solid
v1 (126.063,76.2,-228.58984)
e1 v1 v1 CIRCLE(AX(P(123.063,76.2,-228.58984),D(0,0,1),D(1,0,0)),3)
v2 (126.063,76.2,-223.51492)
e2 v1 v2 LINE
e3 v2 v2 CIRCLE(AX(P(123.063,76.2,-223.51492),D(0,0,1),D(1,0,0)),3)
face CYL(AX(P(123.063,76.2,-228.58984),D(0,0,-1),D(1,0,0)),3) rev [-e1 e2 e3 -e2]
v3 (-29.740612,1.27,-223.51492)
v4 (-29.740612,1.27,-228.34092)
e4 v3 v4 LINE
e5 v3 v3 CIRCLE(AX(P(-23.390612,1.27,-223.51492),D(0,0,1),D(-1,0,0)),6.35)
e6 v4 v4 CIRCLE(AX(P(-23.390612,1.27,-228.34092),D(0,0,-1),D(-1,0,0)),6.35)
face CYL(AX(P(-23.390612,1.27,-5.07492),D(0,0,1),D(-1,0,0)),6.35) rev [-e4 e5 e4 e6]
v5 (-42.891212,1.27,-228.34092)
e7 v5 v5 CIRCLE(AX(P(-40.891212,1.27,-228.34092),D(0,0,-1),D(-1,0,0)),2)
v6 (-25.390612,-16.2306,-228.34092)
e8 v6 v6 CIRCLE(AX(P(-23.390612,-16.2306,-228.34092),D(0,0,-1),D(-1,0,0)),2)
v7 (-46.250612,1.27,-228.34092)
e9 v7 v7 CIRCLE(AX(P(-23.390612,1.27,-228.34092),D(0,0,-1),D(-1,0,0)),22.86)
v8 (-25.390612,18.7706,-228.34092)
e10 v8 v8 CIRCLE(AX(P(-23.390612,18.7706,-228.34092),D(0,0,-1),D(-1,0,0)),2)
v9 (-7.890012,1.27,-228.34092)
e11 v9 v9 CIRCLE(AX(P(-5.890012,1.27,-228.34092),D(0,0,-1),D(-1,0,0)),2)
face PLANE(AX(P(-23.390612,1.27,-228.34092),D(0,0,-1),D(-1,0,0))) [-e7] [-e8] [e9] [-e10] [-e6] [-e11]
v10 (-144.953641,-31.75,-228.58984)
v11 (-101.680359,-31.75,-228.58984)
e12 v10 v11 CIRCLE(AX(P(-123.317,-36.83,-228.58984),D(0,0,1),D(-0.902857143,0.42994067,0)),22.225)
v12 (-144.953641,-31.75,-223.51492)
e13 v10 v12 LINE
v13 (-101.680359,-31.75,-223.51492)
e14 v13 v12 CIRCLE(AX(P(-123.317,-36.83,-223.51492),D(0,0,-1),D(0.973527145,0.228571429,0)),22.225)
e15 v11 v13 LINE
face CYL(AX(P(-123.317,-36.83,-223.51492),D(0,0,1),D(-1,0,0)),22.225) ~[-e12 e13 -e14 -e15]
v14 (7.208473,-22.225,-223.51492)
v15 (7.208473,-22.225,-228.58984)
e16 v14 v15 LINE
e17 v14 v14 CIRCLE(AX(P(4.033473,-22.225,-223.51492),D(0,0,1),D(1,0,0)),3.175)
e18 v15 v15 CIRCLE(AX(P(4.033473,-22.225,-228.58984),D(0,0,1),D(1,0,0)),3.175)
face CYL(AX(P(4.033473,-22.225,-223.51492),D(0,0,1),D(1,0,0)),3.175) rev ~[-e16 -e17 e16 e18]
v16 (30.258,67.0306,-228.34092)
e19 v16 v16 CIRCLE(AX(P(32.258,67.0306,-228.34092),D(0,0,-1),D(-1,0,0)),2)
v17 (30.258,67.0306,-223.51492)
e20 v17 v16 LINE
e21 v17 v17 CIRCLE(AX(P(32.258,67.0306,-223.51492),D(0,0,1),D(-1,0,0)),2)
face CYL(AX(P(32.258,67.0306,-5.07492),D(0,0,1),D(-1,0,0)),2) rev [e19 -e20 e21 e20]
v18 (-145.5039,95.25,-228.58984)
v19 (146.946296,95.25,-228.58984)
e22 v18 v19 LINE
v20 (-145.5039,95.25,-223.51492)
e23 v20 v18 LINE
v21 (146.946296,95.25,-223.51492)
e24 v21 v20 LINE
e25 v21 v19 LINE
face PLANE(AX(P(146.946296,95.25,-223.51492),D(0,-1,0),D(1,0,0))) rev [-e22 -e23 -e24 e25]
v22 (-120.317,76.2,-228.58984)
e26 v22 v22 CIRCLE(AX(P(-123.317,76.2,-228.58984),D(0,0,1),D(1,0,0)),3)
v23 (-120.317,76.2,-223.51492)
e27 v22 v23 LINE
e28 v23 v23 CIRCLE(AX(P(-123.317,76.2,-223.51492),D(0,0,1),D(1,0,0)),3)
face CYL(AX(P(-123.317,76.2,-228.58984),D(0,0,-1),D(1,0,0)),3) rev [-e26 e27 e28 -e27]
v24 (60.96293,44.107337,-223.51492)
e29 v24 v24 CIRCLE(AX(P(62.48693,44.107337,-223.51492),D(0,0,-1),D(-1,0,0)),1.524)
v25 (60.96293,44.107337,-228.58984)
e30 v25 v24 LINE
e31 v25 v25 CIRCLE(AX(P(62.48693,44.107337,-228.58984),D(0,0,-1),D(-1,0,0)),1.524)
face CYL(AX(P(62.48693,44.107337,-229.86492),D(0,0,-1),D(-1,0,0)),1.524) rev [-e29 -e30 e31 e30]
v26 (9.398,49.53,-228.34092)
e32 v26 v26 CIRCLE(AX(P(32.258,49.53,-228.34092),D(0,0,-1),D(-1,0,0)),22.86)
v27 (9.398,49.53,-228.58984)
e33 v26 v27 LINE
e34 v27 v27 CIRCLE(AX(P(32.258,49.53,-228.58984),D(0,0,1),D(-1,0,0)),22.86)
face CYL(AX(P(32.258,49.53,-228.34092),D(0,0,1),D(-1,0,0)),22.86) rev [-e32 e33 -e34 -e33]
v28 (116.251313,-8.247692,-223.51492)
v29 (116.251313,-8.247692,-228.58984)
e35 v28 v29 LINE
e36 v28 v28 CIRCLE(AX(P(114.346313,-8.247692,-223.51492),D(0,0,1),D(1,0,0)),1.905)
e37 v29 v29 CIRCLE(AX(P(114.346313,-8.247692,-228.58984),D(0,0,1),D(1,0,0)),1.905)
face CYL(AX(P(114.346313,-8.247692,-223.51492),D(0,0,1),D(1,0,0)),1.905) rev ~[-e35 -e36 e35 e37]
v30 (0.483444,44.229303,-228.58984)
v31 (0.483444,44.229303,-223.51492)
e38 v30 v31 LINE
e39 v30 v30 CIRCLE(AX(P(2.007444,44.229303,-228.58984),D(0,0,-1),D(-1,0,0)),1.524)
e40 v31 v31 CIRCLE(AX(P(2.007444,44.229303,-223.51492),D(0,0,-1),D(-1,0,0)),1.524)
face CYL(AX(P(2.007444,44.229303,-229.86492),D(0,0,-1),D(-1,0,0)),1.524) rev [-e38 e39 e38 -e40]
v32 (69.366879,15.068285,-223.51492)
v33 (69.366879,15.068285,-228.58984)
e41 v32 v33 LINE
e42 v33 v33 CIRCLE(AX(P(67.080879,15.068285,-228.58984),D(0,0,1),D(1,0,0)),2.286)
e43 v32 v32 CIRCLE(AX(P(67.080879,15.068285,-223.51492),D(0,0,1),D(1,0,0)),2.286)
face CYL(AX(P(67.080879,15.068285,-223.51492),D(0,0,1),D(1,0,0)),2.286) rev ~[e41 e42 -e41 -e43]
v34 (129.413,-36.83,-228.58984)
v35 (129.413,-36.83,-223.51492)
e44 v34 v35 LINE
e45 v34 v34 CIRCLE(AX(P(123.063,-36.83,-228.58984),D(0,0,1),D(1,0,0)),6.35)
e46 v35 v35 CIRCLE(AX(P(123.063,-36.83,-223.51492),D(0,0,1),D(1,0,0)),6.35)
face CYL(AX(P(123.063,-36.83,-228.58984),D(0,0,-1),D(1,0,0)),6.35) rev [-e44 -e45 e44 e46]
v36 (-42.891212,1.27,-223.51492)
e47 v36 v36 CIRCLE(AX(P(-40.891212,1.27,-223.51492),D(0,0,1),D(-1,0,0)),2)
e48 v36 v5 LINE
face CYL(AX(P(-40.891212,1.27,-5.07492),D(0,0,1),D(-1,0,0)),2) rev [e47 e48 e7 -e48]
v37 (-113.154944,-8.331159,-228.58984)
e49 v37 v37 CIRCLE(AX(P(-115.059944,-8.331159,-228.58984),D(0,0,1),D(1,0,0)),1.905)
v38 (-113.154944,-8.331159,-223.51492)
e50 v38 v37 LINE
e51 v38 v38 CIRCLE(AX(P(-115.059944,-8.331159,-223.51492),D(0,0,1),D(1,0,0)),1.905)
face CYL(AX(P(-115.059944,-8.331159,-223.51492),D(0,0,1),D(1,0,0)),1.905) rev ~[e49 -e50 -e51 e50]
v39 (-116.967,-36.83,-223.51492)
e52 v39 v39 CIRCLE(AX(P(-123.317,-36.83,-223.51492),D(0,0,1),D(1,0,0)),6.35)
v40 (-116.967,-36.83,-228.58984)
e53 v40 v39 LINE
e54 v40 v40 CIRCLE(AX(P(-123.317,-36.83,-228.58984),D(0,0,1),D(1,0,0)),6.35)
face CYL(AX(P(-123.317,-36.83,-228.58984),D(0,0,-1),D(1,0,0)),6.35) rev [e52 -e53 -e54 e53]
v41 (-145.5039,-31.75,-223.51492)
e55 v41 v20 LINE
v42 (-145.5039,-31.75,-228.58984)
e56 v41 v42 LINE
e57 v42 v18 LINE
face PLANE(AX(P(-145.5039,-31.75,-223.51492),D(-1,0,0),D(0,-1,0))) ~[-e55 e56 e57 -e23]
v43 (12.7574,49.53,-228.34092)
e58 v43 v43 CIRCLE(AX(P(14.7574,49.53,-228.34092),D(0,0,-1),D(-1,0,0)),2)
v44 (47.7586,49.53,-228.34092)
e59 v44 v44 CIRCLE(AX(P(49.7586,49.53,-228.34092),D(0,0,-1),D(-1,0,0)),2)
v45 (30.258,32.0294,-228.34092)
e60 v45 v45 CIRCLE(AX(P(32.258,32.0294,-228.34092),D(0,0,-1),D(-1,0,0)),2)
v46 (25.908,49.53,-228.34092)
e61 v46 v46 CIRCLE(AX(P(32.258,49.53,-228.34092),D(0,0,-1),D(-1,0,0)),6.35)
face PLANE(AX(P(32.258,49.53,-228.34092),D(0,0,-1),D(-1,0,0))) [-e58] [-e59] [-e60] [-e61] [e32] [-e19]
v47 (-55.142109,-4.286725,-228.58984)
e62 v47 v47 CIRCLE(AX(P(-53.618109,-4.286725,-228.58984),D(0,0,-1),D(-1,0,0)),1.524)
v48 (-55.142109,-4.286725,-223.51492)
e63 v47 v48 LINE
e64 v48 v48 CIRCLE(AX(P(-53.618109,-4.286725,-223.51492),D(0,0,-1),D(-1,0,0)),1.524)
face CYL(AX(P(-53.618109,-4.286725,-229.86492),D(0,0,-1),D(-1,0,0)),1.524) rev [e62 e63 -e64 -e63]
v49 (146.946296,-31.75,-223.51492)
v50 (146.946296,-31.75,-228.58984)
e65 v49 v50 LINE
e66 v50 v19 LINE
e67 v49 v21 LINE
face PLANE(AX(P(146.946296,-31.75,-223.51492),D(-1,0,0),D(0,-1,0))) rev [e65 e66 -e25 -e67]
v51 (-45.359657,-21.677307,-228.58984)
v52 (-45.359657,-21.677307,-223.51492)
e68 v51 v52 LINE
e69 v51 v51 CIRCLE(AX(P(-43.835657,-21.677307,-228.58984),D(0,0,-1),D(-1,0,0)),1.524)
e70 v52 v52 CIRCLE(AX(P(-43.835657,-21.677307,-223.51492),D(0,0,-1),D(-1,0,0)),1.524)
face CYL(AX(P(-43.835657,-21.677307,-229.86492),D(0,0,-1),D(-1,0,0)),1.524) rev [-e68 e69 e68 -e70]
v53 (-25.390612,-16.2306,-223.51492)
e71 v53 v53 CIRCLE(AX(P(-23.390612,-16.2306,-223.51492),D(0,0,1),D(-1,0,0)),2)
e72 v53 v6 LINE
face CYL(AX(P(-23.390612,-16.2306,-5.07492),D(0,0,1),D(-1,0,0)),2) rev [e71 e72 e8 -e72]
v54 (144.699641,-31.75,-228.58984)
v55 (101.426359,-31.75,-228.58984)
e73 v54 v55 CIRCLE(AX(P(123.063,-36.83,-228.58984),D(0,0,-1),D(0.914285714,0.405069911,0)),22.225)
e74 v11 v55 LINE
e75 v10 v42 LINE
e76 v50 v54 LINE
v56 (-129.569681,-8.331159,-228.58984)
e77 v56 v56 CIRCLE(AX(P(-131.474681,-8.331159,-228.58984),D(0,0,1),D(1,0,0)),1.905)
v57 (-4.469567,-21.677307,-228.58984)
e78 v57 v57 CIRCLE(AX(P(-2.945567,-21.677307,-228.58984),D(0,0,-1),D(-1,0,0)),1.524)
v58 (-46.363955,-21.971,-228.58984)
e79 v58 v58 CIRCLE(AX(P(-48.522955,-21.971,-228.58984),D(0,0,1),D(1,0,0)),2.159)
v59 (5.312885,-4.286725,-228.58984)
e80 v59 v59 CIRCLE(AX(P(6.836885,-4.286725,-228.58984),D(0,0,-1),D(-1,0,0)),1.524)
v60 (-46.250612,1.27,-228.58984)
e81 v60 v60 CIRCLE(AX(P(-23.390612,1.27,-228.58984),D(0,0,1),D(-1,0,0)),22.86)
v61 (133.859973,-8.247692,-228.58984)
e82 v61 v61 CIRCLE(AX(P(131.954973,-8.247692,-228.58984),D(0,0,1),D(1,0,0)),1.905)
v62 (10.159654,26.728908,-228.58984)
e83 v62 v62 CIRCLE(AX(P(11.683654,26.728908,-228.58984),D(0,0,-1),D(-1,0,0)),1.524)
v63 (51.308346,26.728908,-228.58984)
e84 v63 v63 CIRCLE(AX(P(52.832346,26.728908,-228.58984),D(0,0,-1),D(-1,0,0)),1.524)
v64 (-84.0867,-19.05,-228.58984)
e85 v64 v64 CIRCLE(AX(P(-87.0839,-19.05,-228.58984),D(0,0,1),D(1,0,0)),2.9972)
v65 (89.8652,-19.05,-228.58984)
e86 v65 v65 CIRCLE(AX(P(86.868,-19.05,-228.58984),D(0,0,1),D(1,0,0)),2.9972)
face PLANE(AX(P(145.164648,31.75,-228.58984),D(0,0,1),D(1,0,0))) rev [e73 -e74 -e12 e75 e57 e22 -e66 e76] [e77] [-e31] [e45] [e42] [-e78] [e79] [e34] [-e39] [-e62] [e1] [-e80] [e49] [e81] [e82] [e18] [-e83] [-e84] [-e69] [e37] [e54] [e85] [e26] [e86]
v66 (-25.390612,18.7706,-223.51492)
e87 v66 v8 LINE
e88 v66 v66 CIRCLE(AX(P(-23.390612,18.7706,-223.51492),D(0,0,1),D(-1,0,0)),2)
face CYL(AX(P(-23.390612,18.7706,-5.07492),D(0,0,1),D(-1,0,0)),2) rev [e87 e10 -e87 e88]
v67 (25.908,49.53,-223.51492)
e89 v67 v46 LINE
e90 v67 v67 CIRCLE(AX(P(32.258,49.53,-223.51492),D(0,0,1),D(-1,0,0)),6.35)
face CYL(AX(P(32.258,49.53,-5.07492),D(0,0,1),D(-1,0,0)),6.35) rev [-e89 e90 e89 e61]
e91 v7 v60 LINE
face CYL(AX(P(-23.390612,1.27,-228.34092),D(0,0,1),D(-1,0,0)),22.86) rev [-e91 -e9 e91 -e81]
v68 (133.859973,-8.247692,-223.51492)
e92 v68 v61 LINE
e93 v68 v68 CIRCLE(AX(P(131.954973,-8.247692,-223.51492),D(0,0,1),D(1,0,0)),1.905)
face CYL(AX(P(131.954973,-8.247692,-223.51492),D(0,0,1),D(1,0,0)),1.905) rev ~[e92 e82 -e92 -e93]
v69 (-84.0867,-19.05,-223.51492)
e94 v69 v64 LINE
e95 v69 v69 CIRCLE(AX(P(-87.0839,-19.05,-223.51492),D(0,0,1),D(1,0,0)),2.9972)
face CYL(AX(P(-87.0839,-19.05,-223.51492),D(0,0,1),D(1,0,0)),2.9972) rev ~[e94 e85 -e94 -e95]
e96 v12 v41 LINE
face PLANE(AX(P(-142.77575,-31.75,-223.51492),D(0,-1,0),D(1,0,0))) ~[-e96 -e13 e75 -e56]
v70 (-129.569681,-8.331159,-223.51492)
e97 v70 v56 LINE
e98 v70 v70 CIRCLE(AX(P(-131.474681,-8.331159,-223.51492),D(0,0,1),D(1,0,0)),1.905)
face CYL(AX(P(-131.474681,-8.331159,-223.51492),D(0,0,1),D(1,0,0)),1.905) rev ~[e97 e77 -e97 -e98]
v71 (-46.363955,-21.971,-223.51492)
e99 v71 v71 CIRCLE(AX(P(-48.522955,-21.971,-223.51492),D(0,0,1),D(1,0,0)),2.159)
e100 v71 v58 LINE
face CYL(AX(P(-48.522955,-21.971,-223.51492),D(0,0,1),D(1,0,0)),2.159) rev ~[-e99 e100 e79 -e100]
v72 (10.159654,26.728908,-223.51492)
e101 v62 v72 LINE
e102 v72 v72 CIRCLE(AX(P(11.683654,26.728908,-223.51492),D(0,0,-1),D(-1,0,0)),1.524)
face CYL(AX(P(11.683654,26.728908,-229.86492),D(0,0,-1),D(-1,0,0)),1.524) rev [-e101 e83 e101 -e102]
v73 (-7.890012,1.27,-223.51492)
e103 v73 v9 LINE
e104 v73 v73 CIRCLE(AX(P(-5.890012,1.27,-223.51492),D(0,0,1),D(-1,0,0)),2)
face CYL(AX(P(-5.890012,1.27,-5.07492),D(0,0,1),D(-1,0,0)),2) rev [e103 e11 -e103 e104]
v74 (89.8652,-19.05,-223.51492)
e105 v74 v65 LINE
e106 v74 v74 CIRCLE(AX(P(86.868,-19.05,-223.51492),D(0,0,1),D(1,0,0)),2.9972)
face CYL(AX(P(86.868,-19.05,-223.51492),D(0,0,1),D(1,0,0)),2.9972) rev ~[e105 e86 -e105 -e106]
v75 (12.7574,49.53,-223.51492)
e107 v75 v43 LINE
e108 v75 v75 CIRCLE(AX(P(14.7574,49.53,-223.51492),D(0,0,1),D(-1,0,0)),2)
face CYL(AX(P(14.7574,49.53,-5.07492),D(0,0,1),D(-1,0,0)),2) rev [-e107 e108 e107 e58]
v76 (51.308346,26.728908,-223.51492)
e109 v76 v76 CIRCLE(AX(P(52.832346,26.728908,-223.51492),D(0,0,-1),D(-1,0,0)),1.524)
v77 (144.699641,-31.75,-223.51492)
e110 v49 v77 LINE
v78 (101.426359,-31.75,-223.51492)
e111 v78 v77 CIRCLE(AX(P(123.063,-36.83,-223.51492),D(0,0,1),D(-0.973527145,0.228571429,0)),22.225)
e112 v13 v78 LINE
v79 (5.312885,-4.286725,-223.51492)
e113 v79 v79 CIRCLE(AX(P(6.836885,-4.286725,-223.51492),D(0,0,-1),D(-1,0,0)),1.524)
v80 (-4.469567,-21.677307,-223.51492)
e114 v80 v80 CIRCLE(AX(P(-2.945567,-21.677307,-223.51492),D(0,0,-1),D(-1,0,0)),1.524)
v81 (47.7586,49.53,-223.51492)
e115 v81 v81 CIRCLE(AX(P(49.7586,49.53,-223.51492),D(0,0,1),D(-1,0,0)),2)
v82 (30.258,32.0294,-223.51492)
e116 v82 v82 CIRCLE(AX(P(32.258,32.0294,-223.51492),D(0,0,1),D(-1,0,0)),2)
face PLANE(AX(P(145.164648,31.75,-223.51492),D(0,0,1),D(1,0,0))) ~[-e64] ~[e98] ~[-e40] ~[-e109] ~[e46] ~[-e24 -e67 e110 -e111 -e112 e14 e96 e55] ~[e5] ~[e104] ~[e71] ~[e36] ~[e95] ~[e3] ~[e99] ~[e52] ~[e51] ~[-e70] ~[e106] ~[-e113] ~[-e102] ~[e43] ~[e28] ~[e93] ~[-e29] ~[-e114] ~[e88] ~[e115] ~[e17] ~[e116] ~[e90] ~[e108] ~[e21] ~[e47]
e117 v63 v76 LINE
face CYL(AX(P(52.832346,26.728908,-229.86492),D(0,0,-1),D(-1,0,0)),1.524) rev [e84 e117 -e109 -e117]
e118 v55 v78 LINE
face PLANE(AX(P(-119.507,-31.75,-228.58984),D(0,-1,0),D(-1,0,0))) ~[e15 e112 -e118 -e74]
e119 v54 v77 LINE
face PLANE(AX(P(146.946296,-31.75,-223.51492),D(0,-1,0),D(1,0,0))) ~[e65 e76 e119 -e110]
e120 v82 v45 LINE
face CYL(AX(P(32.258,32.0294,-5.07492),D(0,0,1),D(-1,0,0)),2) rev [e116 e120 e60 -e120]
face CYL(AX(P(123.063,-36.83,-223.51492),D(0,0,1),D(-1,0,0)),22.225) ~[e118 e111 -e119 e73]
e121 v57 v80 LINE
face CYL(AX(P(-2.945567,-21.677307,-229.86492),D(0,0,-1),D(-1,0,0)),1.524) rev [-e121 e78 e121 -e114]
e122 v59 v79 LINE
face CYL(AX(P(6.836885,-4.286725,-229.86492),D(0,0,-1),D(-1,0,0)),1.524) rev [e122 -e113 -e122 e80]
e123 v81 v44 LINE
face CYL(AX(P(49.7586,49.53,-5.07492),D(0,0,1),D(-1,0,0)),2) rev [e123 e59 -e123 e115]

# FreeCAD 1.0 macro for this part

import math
import FreeCAD as App
import Part
import Sketcher

V = App.Vector
Q = App.Units.Quantity


def add_polygon(sketch, points):
    """Adds a closed chain of lines whose ends are joined by coincident constraints."""
    first, n = sketch.GeometryCount, len(points)
    for a, b in zip(points, points[1:] + points[:1]):
        sketch.addGeometry(Part.LineSegment(App.Vector(*a, 0), App.Vector(*b, 0)), False)
    for i in range(n):
        sketch.addConstraint(Sketcher.Constraint("Coincident", first + i, 2, first + (i + 1) % n, 1))

doc = App.newDocument("Part")
body = doc.addObject("PartDesign::Body", "Body")

# Sketch on XY plane
sketch1 = doc.addObject("Sketcher::SketchObject", "Sketch")
body.addObject(sketch1)
sketch1.AttachmentSupport = (doc.XY_Plane, [""])
sketch1.MapMode = "FlatFace"
sketch1.addGeometry([
    Part.LineSegment(V(-143, -32, 0), V(-127, -32, 0)),  # 0
    Part.ArcOfCircle(Part.Circle(V(-123, -37, 0), V(0, 0, 1), 6), math.radians(53), math.radians(127)),  # 1
    Part.LineSegment(V(-120, -32, 0), V(119, -32, 0)),  # 2
    Part.ArcOfCircle(Part.Circle(V(123, -37, 0), V(0, 0, 1), 6), math.radians(53), math.radians(127)),  # 3
    Part.LineSegment(V(127, -32, 0), V(143, -32, 0)),  # 4
    Part.LineSegment(V(143, -32, 0), V(143, 95, 0)),  # 5
    Part.LineSegment(V(143, 95, 0), V(-143, 95, 0)),  # 6
    Part.LineSegment(V(-143, 95, 0), V(-143, -32, 0)),  # 7
], False)
sketch1.addConstraint([
    Sketcher.Constraint("Coincident", 0, 2, 1, 2),
    Sketcher.Constraint("Coincident", 1, 1, 2, 1),
    Sketcher.Constraint("Coincident", 2, 2, 3, 2),
    Sketcher.Constraint("Coincident", 3, 1, 4, 1),
    Sketcher.Constraint("Coincident", 4, 2, 5, 1),
    Sketcher.Constraint("Coincident", 5, 2, 6, 1),
    Sketcher.Constraint("Coincident", 6, 2, 7, 1),
    Sketcher.Constraint("Coincident", 7, 2, 0, 1),
    Sketcher.Constraint("Horizontal", 0),
    Sketcher.Constraint("Horizontal", 2),
    Sketcher.Constraint("Horizontal", 4),
    Sketcher.Constraint("Vertical", 5),
    Sketcher.Constraint("Horizontal", 6),
    Sketcher.Constraint("Vertical", 7),
    Sketcher.Constraint("Equal", 1, 3),
    Sketcher.Constraint("Symmetric", 4, 2, 7, 2, -2),
    Sketcher.Constraint("Horizontal", 1, 3, 3, 3),
    Sketcher.Constraint("Horizontal", 0, 2, 1, 1),
    Sketcher.Constraint("DistanceY", 5, 1, 5, 2, Q("5 in")),
    Sketcher.Constraint("Radius", 1, Q("0.25 in")),
    Sketcher.Constraint("DistanceX", 2, 1, 2, 2, Q("9.4 in")),
    Sketcher.Constraint("DistanceX", 0, 2, 3, 1, Q("10 in")),
    Sketcher.Constraint("DistanceX", 0, 1, 0, 2, Q("0.64 in")),
    Sketcher.Constraint("DistanceX", 4, 1, 4, 2, Q("0.65 in")),
    Sketcher.Constraint("DistanceY", 1, 3, -1, 1, Q("1.45 in")),
])
pad1 = doc.addObject("PartDesign::Pad", "Pad")
body.addObject(pad1)
pad1.Profile = sketch1
pad1.Length = Q("0.1998 in")
pad1.Reversed = True

# Sketch on XY plane
sketch2 = doc.addObject("Sketcher::SketchObject", "Sketch001")
body.addObject(sketch2)
sketch2.AttachmentSupport = (doc.XY_Plane, [""])
sketch2.MapMode = "FlatFace"
sketch2.AttachmentOffset = App.Placement(V(0, 0, -0.1998 * 25.4), App.Rotation())
sketch2.addGeometry([
    Part.Circle(V(123, -37, 0), V(0, 0, 1), 22),
    Part.Circle(V(-123, -37, 0), V(0, 0, 1), 22),
], False)
sketch2.addConstraint([
    Sketcher.Constraint("Equal", 0, 1),
    Sketcher.Constraint("Horizontal", 0, 3, 1, 3),
    Sketcher.Constraint("Diameter", 0, Q("1.75 in")),
    Sketcher.Constraint("DistanceX", 1, 3, 0, 3, Q("9.7 in")),
    Sketcher.Constraint("DistanceY", 0, 3, -1, 1, Q("1.45 in")),
    Sketcher.Constraint("DistanceX", -1, 1, 0, 3, Q("4.845 in")),
])
pad2 = doc.addObject("PartDesign::Pad", "Pad001")
body.addObject(pad2)
pad2.Profile = sketch2
pad2.Length = Q("0.1998 in")

# Sketch on XY plane
sketch3 = doc.addObject("Sketcher::SketchObject", "Sketch002")
body.addObject(sketch3)
sketch3.AttachmentSupport = (doc.XY_Plane, [""])
sketch3.MapMode = "FlatFace"
sketch3.addGeometry([
    Part.Circle(V(-123, -37, 0), V(0, 0, 1), 6),
    Part.Circle(V(123, -37, 0), V(0, 0, 1), 6),
], False)
sketch3.addConstraint([
    Sketcher.Constraint("Equal", 0, 1),
    Sketcher.Constraint("Horizontal", 0, 3, 1, 3),
    Sketcher.Constraint("Diameter", 0, Q("0.5 in")),
    Sketcher.Constraint("DistanceX", 0, 3, 1, 3, Q("9.7 in")),
    Sketcher.Constraint("DistanceY", 0, 3, -1, 1, Q("1.45 in")),
    Sketcher.Constraint("DistanceX", 0, 3, -1, 1, Q("4.855 in")),
])
pocket1 = doc.addObject("PartDesign::Pocket", "Pocket")
body.addObject(pocket1)
pocket1.Profile = sketch3
pocket1.Length = Q("0.22 in")

# Sketch on XY plane
sketch4 = doc.addObject("Sketcher::SketchObject", "Sketch003")
body.addObject(sketch4)
sketch4.AttachmentSupport = (doc.XY_Plane, [""])
sketch4.MapMode = "FlatFace"
sketch4.AttachmentOffset = App.Placement(V(0, 0, -0.1998 * 25.4), App.Rotation())
add_polygon(sketch4, [(-142.8, 95.2), (-142.8, -31.8), (-145.5, -31.8), (-145.5, 95.2)])  # lines 0-3
sketch4.addConstraint([
    Sketcher.Constraint("Vertical", 0),
    Sketcher.Constraint("Horizontal", 1),
    Sketcher.Constraint("Vertical", 2),
    Sketcher.Constraint("Horizontal", 3),
    Sketcher.Constraint("DistanceY", 0, 2, 0, 1, Q("5 in")),
    Sketcher.Constraint("DistanceY", 0, 2, -1, 1, Q("1.25 in")),
    Sketcher.Constraint("DistanceX", 1, 2, -1, 1, Q("5.7285 in")),
    Sketcher.Constraint("DistanceX", 1, 2, 1, 1, 2.72815),
])
pad3 = doc.addObject("PartDesign::Pad", "Pad002")
body.addObject(pad3)
pad3.Profile = sketch4
pad3.Length = Q("0.1998 in")

# Sketch on XY plane
sketch5 = doc.addObject("Sketcher::SketchObject", "Sketch004")
body.addObject(sketch5)
sketch5.AttachmentSupport = (doc.XY_Plane, [""])
sketch5.MapMode = "FlatFace"
sketch5.AttachmentOffset = App.Placement(V(0, 0, -0.1998 * 25.4), App.Rotation())
add_polygon(sketch5, [(146.9, 95.2), (146.9, -31.8), (143.4, -31.8), (143.4, 95.2)])  # lines 0-3
sketch5.addConstraint([
    Sketcher.Constraint("Vertical", 0),
    Sketcher.Constraint("Horizontal", 1),
    Sketcher.Constraint("Vertical", 2),
    Sketcher.Constraint("Horizontal", 3),
    Sketcher.Constraint("DistanceY", 0, 2, 0, 1, Q("5 in")),
    Sketcher.Constraint("DistanceY", 0, 2, -1, 1, Q("1.25 in")),
    Sketcher.Constraint("DistanceX", -1, 1, 1, 2, Q("5.645 in")),
    Sketcher.Constraint("DistanceX", 1, 2, 1, 1, 3.563296),
])
pad4 = doc.addObject("PartDesign::Pad", "Pad003")
body.addObject(pad4)
pad4.Profile = sketch5
pad4.Length = Q("0.1998 in")

# Sketch on XY plane
sketch6 = doc.addObject("Sketcher::SketchObject", "Sketch005")
body.addObject(sketch6)
sketch6.AttachmentSupport = (doc.XY_Plane, [""])
sketch6.MapMode = "FlatFace"
sketch6.addGeometry([
    Part.Circle(V(-123.3, 76.2, 0), V(0, 0, 1), 3),
    Part.Circle(V(123.1, 76.2, 0), V(0, 0, 1), 3),
], False)
sketch6.addConstraint([
    Sketcher.Constraint("Equal", 0, 1),
    Sketcher.Constraint("Horizontal", 0, 3, 1, 3),
    Sketcher.Constraint("DistanceY", -1, 1, 0, 3, Q("3 in")),
    Sketcher.Constraint("DistanceX", 0, 3, 1, 3, Q("9.7 in")),
    Sketcher.Constraint("Diameter", 0, 6.0),
    Sketcher.Constraint("DistanceX", 0, 3, -1, 1, Q("4.855 in")),
])
pocket2 = doc.addObject("PartDesign::Pocket", "Pocket001")
body.addObject(pocket2)
pocket2.Profile = sketch6
pocket2.Length = Q("15.75 in")
body2 = doc.addObject("PartDesign::Body", "Body001")
doc.recompute()

mirroring = doc.addObject("Part::Mirroring", "Mirroring")
mirroring.Source = body
mirroring.Base = V(0, 0, -114.29492)
mirroring.Normal = V(0, 0, -1)
body2.BaseFeature = mirroring
doc.recompute()

# Sketch on XY plane
sketch7 = doc.addObject("Sketcher::SketchObject", "Sketch006")
body2.addObject(sketch7)
sketch7.AttachmentSupport = (doc.getObject("XY_Plane001"), [""])
sketch7.MapMode = "FlatFace"
sketch7.AttachmentOffset = App.Placement(V(0, 0, -0.1998 * 25.4), App.Rotation())
sketch7.addGeometry([
    Part.Circle(V(-23.4, 18.8, 0), V(0, 0, 1), 2),  # 0
    Part.Circle(V(-5.9, 1.3, 0), V(0, 0, 1), 2),  # 1
    Part.Circle(V(-40.9, 1.3, 0), V(0, 0, 1), 2),  # 2
    Part.Circle(V(-23.4, -16.2, 0), V(0, 0, 1), 2),  # 3
    Part.Circle(V(32.3, 67, 0), V(0, 0, 1), 2),  # 4
    Part.Circle(V(14.8, 49.5, 0), V(0, 0, 1), 2),  # 5
    Part.Circle(V(32.3, 32, 0), V(0, 0, 1), 2),  # 6
    Part.Circle(V(49.8, 49.5, 0), V(0, 0, 1), 2),  # 7
], False)
sketch7.addConstraint([
    Sketcher.Constraint("Equal", 0, 1),
    Sketcher.Constraint("Equal", 1, 2),
    Sketcher.Constraint("Equal", 2, 3),
    Sketcher.Constraint("Equal", 3, 4),
    Sketcher.Constraint("Equal", 4, 5),
    Sketcher.Constraint("Equal", 5, 6),
    Sketcher.Constraint("Equal", 6, 7),
    Sketcher.Constraint("Horizontal", 1, 3, 2, 3),
    Sketcher.Constraint("Horizontal", 5, 3, 7, 3),
    Sketcher.Constraint("Vertical", 0, 3, 3, 3),
    Sketcher.Constraint("Vertical", 4, 3, 6, 3),
    Sketcher.Constraint("DistanceY", 0, 3, 4, 3, Q("1.9 in")),
    Sketcher.Constraint("DistanceY", 1, 3, 5, 3, Q("1.9 in")),
    Sketcher.Constraint("DistanceY", 3, 3, 6, 3, Q("1.9 in")),
    Sketcher.Constraint("Diameter", 0, 4.0),
    Sketcher.Constraint("DistanceY", -1, 1, 1, 3, Q("0.05 in")),
    Sketcher.Constraint("DistanceX", -1, 1, 4, 3, Q("1.27 in")),
    Sketcher.Constraint("DistanceY", -1, 1, 0, 3, Q("0.739 in")),
    Sketcher.Constraint("DistanceY", 3, 3, -1, 1, Q("0.639 in")),
    Sketcher.Constraint("DistanceX", -1, 1, 5, 3, Q("0.581 in")),
    Sketcher.Constraint("DistanceX", -1, 1, 7, 3, Q("1.959 in")),
    Sketcher.Constraint("DistanceX", 0, 3, 1, 3, Q("0.689 in")),
    Sketcher.Constraint("DistanceX", 2, 3, 0, 3, Q("0.689 in")),
    Sketcher.Constraint("DistanceX", 0, 3, -1, 1, 23.390612),
])
pocket3 = doc.addObject("PartDesign::Pocket", "Pocket002")
body2.addObject(pocket3)
pocket3.Profile = sketch7
pocket3.Length = Q("61 in")

# Sketch on XY plane
sketch8 = doc.addObject("Sketcher::SketchObject", "Sketch007")
body2.addObject(sketch8)
sketch8.AttachmentSupport = (doc.getObject("XY_Plane001"), [""])
sketch8.MapMode = "FlatFace"
sketch8.AttachmentOffset = App.Placement(V(0, 0, -8.7998 * 25.4), App.Rotation())
sketch8.addGeometry([
    Part.Circle(V(-87.1, -19.1, 0), V(0, 0, 1), 3),
    Part.Circle(V(86.9, -19.1, 0), V(0, 0, 1), 3),
], False)
sketch8.addConstraint([
    Sketcher.Constraint("Equal", 0, 1),
    Sketcher.Constraint("Horizontal", 0, 3, 1, 3),
    Sketcher.Constraint("Diameter", 0, Q("0.236 in")),
    Sketcher.Constraint("DistanceY", 0, 3, -1, 1, Q("0.75 in")),
    Sketcher.Constraint("DistanceX", -1, 1, 1, 3, Q("3.42 in")),
    Sketcher.Constraint("DistanceX", 0, 3, -1, 1, Q("3.4285 in")),
])
pocket4 = doc.addObject("PartDesign::Pocket", "Pocket003")
body2.addObject(pocket4)
pocket4.Profile = sketch8
pocket4.Length = Q("61 in")

# Sketch on XY plane
sketch9 = doc.addObject("Sketcher::SketchObject", "Sketch008")
body2.addObject(sketch9)
sketch9.AttachmentSupport = (doc.getObject("XY_Plane001"), [""])
sketch9.MapMode = "FlatFace"
sketch9.AttachmentOffset = App.Placement(V(0, 0, -0.1998 * 25.4), App.Rotation())
sketch9.addGeometry([
    Part.Circle(V(-23, 1, 0), V(0, 0, 1), 6),
    Part.Circle(V(32, 50, 0), V(0, 0, 1), 6),
], False)
sketch9.addConstraint([
    Sketcher.Constraint("Equal", 0, 1),
    Sketcher.Constraint("Diameter", 0, Q("0.5 in")),
    Sketcher.Constraint("DistanceY", 0, 3, 1, 3, Q("1.9 in")),
    Sketcher.Constraint("DistanceY", -1, 1, 0, 3, Q("0.05 in")),
    Sketcher.Constraint("DistanceX", -1, 1, 1, 3, Q("1.27 in")),
    Sketcher.Constraint("DistanceX", 0, 3, -1, 1, 23.390612),
])
pocket5 = doc.addObject("PartDesign::Pocket", "Pocket004")
body2.addObject(pocket5)
pocket5.Profile = sketch9
pocket5.Length = Q("61 in")

# Sketch on XY plane
sketch10 = doc.addObject("Sketcher::SketchObject", "Sketch009")
body2.addObject(sketch10)
sketch10.AttachmentSupport = (doc.getObject("XY_Plane001"), [""])
sketch10.MapMode = "FlatFace"
sketch10.AttachmentOffset = App.Placement(V(0, 0, -8.9898 * 25.4), App.Rotation())
sketch10.addGeometry([
    Part.Circle(V(-23.4, 1.3, 0), V(0, 0, 1), 22.9),  # 0
    Part.Circle(V(-23.4, -16.2, 0), V(0, 0, 1), 2),  # 1
    Part.Circle(V(-5.9, 1.3, 0), V(0, 0, 1), 2),  # 2
    Part.Circle(V(-23.4, 1.3, 0), V(0, 0, 1), 6.3),  # 3
    Part.Circle(V(-40.9, 1.3, 0), V(0, 0, 1), 2),  # 4
    Part.Circle(V(-23.4, 18.8, 0), V(0, 0, 1), 2),  # 5
    Part.Circle(V(32.3, 49.5, 0), V(0, 0, 1), 22.9),  # 6
    Part.Circle(V(49.8, 49.5, 0), V(0, 0, 1), 2),  # 7
    Part.Circle(V(32.3, 32, 0), V(0, 0, 1), 2),  # 8
    Part.Circle(V(32.3, 49.5, 0), V(0, 0, 1), 6.3),  # 9
    Part.Circle(V(14.8, 49.5, 0), V(0, 0, 1), 2),  # 10
    Part.Circle(V(32.3, 67, 0), V(0, 0, 1), 2),  # 11
], False)
sketch10.addConstraint([
    Sketcher.Constraint("Coincident", 3, 3, 0, 3),
    Sketcher.Constraint("Coincident", 9, 3, 6, 3),
    Sketcher.Constraint("Equal", 1, 2),
    Sketcher.Constraint("Equal", 2, 4),
    Sketcher.Constraint("Equal", 4, 5),
    Sketcher.Constraint("Equal", 0, 6),
    Sketcher.Constraint("Equal", 5, 7),
    Sketcher.Constraint("Equal", 7, 8),
    Sketcher.Constraint("Equal", 3, 9),
    Sketcher.Constraint("Equal", 8, 10),
    Sketcher.Constraint("Equal", 10, 11),
    Sketcher.Constraint("Horizontal", 0, 3, 2, 3),
    Sketcher.Constraint("Horizontal", 3, 3, 4, 3),
    Sketcher.Constraint("Horizontal", 6, 3, 7, 3),
    Sketcher.Constraint("Horizontal", 9, 3, 10, 3),
    Sketcher.Constraint("Vertical", 0, 3, 1, 3),
    Sketcher.Constraint("Vertical", 3, 3, 5, 3),
    Sketcher.Constraint("Vertical", 6, 3, 8, 3),
    Sketcher.Constraint("Vertical", 9, 3, 11, 3),
    Sketcher.Constraint("Diameter", 0, Q("1.8 in")),
    Sketcher.Constraint("Diameter", 3, Q("0.5 in")),
    Sketcher.Constraint("DistanceY", 2, 3, 6, 3, Q("1.9 in")),
    Sketcher.Constraint("Diameter", 1, 4.0),
    Sketcher.Constraint("DistanceY", -1, 1, 0, 3, Q("0.05 in")),
    Sketcher.Constraint("DistanceX", -1, 1, 6, 3, Q("1.27 in")),
    Sketcher.Constraint("DistanceY", 1, 3, -1, 1, Q("0.639 in")),
    Sketcher.Constraint("DistanceY", -1, 1, 5, 3, Q("0.739 in")),
    Sketcher.Constraint("DistanceX", -1, 1, 7, 3, Q("1.959 in")),
    Sketcher.Constraint("DistanceY", -1, 1, 8, 3, Q("1.261 in")),
    Sketcher.Constraint("DistanceX", -1, 1, 10, 3, Q("0.581 in")),
    Sketcher.Constraint("DistanceY", -1, 1, 11, 3, Q("2.639 in")),
    Sketcher.Constraint("DistanceX", 0, 3, 2, 3, Q("0.689 in")),
    Sketcher.Constraint("DistanceX", 4, 3, 0, 3, Q("0.689 in")),
    Sketcher.Constraint("DistanceX", 0, 3, -1, 1, 23.390612),
])
pocket6 = doc.addObject("PartDesign::Pocket", "Pocket005")
body2.addObject(pocket6)
pocket6.Profile = sketch10
pocket6.Length = Q("61 in")

# Sketch on XY plane
sketch11 = doc.addObject("Sketcher::SketchObject", "Sketch010")
body2.addObject(sketch11)
sketch11.AttachmentSupport = (doc.getObject("XY_Plane001"), [""])
sketch11.MapMode = "FlatFace"
sketch11.AttachmentOffset = App.Placement(V(0, 0, -8.7998 * 25.4), App.Rotation())
sketch11.addGeometry([
    Part.Circle(V(2, 44.2, 0), V(0, 0, 1), 1.5),  # 0
    Part.Circle(V(11.7, 26.7, 0), V(0, 0, 1), 1.5),  # 1
    Part.Circle(V(52.8, 26.7, 0), V(0, 0, 1), 1.5),  # 2
    Part.Circle(V(62.5, 44.1, 0), V(0, 0, 1), 1.5),  # 3
    Part.Circle(V(-53.6, -4.3, 0), V(0, 0, 1), 1.5),  # 4
    Part.Circle(V(-43.8, -21.7, 0), V(0, 0, 1), 1.5),  # 5
    Part.Circle(V(-2.9, -21.7, 0), V(0, 0, 1), 1.5),  # 6
    Part.Circle(V(6.8, -4.3, 0), V(0, 0, 1), 1.5),  # 7
], False)
sketch11.addConstraint([
    Sketcher.Constraint("Equal", 0, 1),
    Sketcher.Constraint("Equal", 1, 2),
    Sketcher.Constraint("Equal", 2, 3),
    Sketcher.Constraint("Equal", 3, 4),
    Sketcher.Constraint("Equal", 4, 5),
    Sketcher.Constraint("Equal", 5, 6),
    Sketcher.Constraint("Equal", 6, 7),
    Sketcher.Constraint("Horizontal", 1, 3, 2, 3),
    Sketcher.Constraint("Horizontal", 5, 3, 6, 3),
    Sketcher.Constraint("Horizontal", 4, 3, 7, 3),
    Sketcher.Constraint("Diameter", 0, Q("0.12 in")),
    Sketcher.Constraint("DistanceX", 0, 3, 2, 3, 50.824902),
    Sketcher.Constraint("DistanceX", 5, 3, 0, 3, 45.843101),
    Sketcher.Constraint("DistanceX", -1, 1, 3, 3, 62.48693),
    Sketcher.Constraint("DistanceX", 4, 3, -1, 1, 53.618109),
    Sketcher.Constraint("DistanceX", 0, 3, 1, 3, 9.67621),
    Sketcher.Constraint("DistanceY", 2, 3, 3, 3, 17.378429),
    Sketcher.Constraint("DistanceY", 4, 3, 3, 3, 48.394062),
    Sketcher.Constraint("DistanceY", 5, 3, 0, 3, 65.90661),
    Sketcher.Constraint("DistanceX", 5, 3, 6, 3, 40.890089),
    Sketcher.Constraint("DistanceX", 4, 3, 6, 3, 50.672541),
    Sketcher.Constraint("DistanceX", 7, 3, 1, 3, 4.846769),
    Sketcher.Constraint("DistanceY", -1, 1, 0, 3, 44.229303),
    Sketcher.Constraint("DistanceY", -1, 1, 1, 3, 26.728908),
])
pocket7 = doc.addObject("PartDesign::Pocket", "Pocket006")
body2.addObject(pocket7)
pocket7.Profile = sketch11
pocket7.Type = "ThroughAll"
pocket7.Midplane = True

# Sketch on XY plane
sketch12 = doc.addObject("Sketcher::SketchObject", "Sketch011")
body2.addObject(sketch12)
sketch12.AttachmentSupport = (doc.getObject("XY_Plane001"), [""])
sketch12.MapMode = "FlatFace"
sketch12.AttachmentOffset = App.Placement(V(0, 0, -8.7998 * 25.4), App.Rotation())
sketch12.addGeometry([
    Part.Circle(V(-131.5, -8.3, 0), V(0, 0, 1), 1.9),  # 0
    Part.Circle(V(-115.1, -8.3, 0), V(0, 0, 1), 1.9),  # 1
    Part.Circle(V(-123.3, -35.6, 0), V(0, 0, 1), 1.9),  # 2
    Part.Circle(V(123.1, -35.4, 0), V(0, 0, 1), 1.9),  # 3
    Part.Circle(V(114.3, -8.2, 0), V(0, 0, 1), 1.9),  # 4
    Part.Circle(V(132, -8.2, 0), V(0, 0, 1), 1.9),  # 5
], False)
sketch12.addConstraint([
    Sketcher.Constraint("Equal", 0, 1),
    Sketcher.Constraint("Equal", 1, 2),
    Sketcher.Constraint("Equal", 2, 3),
    Sketcher.Constraint("Equal", 3, 4),
    Sketcher.Constraint("Equal", 4, 5),
    Sketcher.Constraint("Horizontal", 0, 3, 1, 3),
    Sketcher.Constraint("Horizontal", 4, 3, 5, 3),
    Sketcher.Constraint("Diameter", 0, Q("0.15 in")),
    Sketcher.Constraint("DistanceX", 2, 3, 3, 3, Q("9.7 in")),
    Sketcher.Constraint("DistanceX", 2, 3, -1, 1, Q("4.855 in")),
    Sketcher.Constraint("DistanceY", 3, 3, -1, 1, Q("1.395 in")),
    Sketcher.Constraint("DistanceX", 0, 3, -1, 1, 131.474681),
    Sketcher.Constraint("DistanceY", 0, 3, -1, 1, 8.331159),
    Sketcher.Constraint("DistanceY", 2, 3, -1, 1, 35.561808),
    Sketcher.Constraint("DistanceX", 4, 3, 5, 3, 17.60866),
    Sketcher.Constraint("DistanceX", 1, 3, -1, 1, 115.059944),
    Sketcher.Constraint("DistanceX", -1, 1, 4, 3, 114.346313),
    Sketcher.Constraint("DistanceY", 4, 3, -1, 1, 8.247692),
])
pocket8 = doc.addObject("PartDesign::Pocket", "Pocket007")
body2.addObject(pocket8)
pocket8.Profile = sketch12
pocket8.Length = Q("0.25 in")

# Sketch on XY plane
sketch13 = doc.addObject("Sketcher::SketchObject", "Sketch012")
body2.addObject(sketch13)
sketch13.AttachmentSupport = (doc.getObject("XY_Plane001"), [""])
sketch13.MapMode = "FlatFace"
sketch13.AttachmentOffset = App.Placement(V(0, 0, -8.7998 * 25.4), App.Rotation())
sketch13.addGeometry([
    Part.Circle(V(-48.5, -22, 0), V(0, 0, 1), 2.2),
    Part.Circle(V(4, -22.2, 0), V(0, 0, 1), 3.2),
    Part.Circle(V(67.1, 15.1, 0), V(0, 0, 1), 2.3),
], False)
sketch13.addConstraint([
    Sketcher.Constraint("Diameter", 0, Q("0.17 in")),
    Sketcher.Constraint("Diameter", 1, Q("0.25 in")),
    Sketcher.Constraint("Diameter", 2, Q("0.18 in")),
    Sketcher.Constraint("DistanceY", 1, 3, 0, 3, Q("0.01 in")),
    Sketcher.Constraint("DistanceY", 0, 3, -1, 1, Q("0.865 in")),
    Sketcher.Constraint("DistanceX", -1, 1, 2, 3, 67.080879),
    Sketcher.Constraint("DistanceX", 0, 3, -1, 1, 48.522955),
    Sketcher.Constraint("DistanceX", -1, 1, 1, 3, 4.033473),
    Sketcher.Constraint("DistanceY", -1, 1, 2, 3, 15.068285),
])
pocket9 = doc.addObject("PartDesign::Pocket", "Pocket008")
body2.addObject(pocket9)
pocket9.Profile = sketch13
pocket9.Length = Q("0.25 in")
body.Visibility = False
mirroring.Visibility = False

doc.recompute()
